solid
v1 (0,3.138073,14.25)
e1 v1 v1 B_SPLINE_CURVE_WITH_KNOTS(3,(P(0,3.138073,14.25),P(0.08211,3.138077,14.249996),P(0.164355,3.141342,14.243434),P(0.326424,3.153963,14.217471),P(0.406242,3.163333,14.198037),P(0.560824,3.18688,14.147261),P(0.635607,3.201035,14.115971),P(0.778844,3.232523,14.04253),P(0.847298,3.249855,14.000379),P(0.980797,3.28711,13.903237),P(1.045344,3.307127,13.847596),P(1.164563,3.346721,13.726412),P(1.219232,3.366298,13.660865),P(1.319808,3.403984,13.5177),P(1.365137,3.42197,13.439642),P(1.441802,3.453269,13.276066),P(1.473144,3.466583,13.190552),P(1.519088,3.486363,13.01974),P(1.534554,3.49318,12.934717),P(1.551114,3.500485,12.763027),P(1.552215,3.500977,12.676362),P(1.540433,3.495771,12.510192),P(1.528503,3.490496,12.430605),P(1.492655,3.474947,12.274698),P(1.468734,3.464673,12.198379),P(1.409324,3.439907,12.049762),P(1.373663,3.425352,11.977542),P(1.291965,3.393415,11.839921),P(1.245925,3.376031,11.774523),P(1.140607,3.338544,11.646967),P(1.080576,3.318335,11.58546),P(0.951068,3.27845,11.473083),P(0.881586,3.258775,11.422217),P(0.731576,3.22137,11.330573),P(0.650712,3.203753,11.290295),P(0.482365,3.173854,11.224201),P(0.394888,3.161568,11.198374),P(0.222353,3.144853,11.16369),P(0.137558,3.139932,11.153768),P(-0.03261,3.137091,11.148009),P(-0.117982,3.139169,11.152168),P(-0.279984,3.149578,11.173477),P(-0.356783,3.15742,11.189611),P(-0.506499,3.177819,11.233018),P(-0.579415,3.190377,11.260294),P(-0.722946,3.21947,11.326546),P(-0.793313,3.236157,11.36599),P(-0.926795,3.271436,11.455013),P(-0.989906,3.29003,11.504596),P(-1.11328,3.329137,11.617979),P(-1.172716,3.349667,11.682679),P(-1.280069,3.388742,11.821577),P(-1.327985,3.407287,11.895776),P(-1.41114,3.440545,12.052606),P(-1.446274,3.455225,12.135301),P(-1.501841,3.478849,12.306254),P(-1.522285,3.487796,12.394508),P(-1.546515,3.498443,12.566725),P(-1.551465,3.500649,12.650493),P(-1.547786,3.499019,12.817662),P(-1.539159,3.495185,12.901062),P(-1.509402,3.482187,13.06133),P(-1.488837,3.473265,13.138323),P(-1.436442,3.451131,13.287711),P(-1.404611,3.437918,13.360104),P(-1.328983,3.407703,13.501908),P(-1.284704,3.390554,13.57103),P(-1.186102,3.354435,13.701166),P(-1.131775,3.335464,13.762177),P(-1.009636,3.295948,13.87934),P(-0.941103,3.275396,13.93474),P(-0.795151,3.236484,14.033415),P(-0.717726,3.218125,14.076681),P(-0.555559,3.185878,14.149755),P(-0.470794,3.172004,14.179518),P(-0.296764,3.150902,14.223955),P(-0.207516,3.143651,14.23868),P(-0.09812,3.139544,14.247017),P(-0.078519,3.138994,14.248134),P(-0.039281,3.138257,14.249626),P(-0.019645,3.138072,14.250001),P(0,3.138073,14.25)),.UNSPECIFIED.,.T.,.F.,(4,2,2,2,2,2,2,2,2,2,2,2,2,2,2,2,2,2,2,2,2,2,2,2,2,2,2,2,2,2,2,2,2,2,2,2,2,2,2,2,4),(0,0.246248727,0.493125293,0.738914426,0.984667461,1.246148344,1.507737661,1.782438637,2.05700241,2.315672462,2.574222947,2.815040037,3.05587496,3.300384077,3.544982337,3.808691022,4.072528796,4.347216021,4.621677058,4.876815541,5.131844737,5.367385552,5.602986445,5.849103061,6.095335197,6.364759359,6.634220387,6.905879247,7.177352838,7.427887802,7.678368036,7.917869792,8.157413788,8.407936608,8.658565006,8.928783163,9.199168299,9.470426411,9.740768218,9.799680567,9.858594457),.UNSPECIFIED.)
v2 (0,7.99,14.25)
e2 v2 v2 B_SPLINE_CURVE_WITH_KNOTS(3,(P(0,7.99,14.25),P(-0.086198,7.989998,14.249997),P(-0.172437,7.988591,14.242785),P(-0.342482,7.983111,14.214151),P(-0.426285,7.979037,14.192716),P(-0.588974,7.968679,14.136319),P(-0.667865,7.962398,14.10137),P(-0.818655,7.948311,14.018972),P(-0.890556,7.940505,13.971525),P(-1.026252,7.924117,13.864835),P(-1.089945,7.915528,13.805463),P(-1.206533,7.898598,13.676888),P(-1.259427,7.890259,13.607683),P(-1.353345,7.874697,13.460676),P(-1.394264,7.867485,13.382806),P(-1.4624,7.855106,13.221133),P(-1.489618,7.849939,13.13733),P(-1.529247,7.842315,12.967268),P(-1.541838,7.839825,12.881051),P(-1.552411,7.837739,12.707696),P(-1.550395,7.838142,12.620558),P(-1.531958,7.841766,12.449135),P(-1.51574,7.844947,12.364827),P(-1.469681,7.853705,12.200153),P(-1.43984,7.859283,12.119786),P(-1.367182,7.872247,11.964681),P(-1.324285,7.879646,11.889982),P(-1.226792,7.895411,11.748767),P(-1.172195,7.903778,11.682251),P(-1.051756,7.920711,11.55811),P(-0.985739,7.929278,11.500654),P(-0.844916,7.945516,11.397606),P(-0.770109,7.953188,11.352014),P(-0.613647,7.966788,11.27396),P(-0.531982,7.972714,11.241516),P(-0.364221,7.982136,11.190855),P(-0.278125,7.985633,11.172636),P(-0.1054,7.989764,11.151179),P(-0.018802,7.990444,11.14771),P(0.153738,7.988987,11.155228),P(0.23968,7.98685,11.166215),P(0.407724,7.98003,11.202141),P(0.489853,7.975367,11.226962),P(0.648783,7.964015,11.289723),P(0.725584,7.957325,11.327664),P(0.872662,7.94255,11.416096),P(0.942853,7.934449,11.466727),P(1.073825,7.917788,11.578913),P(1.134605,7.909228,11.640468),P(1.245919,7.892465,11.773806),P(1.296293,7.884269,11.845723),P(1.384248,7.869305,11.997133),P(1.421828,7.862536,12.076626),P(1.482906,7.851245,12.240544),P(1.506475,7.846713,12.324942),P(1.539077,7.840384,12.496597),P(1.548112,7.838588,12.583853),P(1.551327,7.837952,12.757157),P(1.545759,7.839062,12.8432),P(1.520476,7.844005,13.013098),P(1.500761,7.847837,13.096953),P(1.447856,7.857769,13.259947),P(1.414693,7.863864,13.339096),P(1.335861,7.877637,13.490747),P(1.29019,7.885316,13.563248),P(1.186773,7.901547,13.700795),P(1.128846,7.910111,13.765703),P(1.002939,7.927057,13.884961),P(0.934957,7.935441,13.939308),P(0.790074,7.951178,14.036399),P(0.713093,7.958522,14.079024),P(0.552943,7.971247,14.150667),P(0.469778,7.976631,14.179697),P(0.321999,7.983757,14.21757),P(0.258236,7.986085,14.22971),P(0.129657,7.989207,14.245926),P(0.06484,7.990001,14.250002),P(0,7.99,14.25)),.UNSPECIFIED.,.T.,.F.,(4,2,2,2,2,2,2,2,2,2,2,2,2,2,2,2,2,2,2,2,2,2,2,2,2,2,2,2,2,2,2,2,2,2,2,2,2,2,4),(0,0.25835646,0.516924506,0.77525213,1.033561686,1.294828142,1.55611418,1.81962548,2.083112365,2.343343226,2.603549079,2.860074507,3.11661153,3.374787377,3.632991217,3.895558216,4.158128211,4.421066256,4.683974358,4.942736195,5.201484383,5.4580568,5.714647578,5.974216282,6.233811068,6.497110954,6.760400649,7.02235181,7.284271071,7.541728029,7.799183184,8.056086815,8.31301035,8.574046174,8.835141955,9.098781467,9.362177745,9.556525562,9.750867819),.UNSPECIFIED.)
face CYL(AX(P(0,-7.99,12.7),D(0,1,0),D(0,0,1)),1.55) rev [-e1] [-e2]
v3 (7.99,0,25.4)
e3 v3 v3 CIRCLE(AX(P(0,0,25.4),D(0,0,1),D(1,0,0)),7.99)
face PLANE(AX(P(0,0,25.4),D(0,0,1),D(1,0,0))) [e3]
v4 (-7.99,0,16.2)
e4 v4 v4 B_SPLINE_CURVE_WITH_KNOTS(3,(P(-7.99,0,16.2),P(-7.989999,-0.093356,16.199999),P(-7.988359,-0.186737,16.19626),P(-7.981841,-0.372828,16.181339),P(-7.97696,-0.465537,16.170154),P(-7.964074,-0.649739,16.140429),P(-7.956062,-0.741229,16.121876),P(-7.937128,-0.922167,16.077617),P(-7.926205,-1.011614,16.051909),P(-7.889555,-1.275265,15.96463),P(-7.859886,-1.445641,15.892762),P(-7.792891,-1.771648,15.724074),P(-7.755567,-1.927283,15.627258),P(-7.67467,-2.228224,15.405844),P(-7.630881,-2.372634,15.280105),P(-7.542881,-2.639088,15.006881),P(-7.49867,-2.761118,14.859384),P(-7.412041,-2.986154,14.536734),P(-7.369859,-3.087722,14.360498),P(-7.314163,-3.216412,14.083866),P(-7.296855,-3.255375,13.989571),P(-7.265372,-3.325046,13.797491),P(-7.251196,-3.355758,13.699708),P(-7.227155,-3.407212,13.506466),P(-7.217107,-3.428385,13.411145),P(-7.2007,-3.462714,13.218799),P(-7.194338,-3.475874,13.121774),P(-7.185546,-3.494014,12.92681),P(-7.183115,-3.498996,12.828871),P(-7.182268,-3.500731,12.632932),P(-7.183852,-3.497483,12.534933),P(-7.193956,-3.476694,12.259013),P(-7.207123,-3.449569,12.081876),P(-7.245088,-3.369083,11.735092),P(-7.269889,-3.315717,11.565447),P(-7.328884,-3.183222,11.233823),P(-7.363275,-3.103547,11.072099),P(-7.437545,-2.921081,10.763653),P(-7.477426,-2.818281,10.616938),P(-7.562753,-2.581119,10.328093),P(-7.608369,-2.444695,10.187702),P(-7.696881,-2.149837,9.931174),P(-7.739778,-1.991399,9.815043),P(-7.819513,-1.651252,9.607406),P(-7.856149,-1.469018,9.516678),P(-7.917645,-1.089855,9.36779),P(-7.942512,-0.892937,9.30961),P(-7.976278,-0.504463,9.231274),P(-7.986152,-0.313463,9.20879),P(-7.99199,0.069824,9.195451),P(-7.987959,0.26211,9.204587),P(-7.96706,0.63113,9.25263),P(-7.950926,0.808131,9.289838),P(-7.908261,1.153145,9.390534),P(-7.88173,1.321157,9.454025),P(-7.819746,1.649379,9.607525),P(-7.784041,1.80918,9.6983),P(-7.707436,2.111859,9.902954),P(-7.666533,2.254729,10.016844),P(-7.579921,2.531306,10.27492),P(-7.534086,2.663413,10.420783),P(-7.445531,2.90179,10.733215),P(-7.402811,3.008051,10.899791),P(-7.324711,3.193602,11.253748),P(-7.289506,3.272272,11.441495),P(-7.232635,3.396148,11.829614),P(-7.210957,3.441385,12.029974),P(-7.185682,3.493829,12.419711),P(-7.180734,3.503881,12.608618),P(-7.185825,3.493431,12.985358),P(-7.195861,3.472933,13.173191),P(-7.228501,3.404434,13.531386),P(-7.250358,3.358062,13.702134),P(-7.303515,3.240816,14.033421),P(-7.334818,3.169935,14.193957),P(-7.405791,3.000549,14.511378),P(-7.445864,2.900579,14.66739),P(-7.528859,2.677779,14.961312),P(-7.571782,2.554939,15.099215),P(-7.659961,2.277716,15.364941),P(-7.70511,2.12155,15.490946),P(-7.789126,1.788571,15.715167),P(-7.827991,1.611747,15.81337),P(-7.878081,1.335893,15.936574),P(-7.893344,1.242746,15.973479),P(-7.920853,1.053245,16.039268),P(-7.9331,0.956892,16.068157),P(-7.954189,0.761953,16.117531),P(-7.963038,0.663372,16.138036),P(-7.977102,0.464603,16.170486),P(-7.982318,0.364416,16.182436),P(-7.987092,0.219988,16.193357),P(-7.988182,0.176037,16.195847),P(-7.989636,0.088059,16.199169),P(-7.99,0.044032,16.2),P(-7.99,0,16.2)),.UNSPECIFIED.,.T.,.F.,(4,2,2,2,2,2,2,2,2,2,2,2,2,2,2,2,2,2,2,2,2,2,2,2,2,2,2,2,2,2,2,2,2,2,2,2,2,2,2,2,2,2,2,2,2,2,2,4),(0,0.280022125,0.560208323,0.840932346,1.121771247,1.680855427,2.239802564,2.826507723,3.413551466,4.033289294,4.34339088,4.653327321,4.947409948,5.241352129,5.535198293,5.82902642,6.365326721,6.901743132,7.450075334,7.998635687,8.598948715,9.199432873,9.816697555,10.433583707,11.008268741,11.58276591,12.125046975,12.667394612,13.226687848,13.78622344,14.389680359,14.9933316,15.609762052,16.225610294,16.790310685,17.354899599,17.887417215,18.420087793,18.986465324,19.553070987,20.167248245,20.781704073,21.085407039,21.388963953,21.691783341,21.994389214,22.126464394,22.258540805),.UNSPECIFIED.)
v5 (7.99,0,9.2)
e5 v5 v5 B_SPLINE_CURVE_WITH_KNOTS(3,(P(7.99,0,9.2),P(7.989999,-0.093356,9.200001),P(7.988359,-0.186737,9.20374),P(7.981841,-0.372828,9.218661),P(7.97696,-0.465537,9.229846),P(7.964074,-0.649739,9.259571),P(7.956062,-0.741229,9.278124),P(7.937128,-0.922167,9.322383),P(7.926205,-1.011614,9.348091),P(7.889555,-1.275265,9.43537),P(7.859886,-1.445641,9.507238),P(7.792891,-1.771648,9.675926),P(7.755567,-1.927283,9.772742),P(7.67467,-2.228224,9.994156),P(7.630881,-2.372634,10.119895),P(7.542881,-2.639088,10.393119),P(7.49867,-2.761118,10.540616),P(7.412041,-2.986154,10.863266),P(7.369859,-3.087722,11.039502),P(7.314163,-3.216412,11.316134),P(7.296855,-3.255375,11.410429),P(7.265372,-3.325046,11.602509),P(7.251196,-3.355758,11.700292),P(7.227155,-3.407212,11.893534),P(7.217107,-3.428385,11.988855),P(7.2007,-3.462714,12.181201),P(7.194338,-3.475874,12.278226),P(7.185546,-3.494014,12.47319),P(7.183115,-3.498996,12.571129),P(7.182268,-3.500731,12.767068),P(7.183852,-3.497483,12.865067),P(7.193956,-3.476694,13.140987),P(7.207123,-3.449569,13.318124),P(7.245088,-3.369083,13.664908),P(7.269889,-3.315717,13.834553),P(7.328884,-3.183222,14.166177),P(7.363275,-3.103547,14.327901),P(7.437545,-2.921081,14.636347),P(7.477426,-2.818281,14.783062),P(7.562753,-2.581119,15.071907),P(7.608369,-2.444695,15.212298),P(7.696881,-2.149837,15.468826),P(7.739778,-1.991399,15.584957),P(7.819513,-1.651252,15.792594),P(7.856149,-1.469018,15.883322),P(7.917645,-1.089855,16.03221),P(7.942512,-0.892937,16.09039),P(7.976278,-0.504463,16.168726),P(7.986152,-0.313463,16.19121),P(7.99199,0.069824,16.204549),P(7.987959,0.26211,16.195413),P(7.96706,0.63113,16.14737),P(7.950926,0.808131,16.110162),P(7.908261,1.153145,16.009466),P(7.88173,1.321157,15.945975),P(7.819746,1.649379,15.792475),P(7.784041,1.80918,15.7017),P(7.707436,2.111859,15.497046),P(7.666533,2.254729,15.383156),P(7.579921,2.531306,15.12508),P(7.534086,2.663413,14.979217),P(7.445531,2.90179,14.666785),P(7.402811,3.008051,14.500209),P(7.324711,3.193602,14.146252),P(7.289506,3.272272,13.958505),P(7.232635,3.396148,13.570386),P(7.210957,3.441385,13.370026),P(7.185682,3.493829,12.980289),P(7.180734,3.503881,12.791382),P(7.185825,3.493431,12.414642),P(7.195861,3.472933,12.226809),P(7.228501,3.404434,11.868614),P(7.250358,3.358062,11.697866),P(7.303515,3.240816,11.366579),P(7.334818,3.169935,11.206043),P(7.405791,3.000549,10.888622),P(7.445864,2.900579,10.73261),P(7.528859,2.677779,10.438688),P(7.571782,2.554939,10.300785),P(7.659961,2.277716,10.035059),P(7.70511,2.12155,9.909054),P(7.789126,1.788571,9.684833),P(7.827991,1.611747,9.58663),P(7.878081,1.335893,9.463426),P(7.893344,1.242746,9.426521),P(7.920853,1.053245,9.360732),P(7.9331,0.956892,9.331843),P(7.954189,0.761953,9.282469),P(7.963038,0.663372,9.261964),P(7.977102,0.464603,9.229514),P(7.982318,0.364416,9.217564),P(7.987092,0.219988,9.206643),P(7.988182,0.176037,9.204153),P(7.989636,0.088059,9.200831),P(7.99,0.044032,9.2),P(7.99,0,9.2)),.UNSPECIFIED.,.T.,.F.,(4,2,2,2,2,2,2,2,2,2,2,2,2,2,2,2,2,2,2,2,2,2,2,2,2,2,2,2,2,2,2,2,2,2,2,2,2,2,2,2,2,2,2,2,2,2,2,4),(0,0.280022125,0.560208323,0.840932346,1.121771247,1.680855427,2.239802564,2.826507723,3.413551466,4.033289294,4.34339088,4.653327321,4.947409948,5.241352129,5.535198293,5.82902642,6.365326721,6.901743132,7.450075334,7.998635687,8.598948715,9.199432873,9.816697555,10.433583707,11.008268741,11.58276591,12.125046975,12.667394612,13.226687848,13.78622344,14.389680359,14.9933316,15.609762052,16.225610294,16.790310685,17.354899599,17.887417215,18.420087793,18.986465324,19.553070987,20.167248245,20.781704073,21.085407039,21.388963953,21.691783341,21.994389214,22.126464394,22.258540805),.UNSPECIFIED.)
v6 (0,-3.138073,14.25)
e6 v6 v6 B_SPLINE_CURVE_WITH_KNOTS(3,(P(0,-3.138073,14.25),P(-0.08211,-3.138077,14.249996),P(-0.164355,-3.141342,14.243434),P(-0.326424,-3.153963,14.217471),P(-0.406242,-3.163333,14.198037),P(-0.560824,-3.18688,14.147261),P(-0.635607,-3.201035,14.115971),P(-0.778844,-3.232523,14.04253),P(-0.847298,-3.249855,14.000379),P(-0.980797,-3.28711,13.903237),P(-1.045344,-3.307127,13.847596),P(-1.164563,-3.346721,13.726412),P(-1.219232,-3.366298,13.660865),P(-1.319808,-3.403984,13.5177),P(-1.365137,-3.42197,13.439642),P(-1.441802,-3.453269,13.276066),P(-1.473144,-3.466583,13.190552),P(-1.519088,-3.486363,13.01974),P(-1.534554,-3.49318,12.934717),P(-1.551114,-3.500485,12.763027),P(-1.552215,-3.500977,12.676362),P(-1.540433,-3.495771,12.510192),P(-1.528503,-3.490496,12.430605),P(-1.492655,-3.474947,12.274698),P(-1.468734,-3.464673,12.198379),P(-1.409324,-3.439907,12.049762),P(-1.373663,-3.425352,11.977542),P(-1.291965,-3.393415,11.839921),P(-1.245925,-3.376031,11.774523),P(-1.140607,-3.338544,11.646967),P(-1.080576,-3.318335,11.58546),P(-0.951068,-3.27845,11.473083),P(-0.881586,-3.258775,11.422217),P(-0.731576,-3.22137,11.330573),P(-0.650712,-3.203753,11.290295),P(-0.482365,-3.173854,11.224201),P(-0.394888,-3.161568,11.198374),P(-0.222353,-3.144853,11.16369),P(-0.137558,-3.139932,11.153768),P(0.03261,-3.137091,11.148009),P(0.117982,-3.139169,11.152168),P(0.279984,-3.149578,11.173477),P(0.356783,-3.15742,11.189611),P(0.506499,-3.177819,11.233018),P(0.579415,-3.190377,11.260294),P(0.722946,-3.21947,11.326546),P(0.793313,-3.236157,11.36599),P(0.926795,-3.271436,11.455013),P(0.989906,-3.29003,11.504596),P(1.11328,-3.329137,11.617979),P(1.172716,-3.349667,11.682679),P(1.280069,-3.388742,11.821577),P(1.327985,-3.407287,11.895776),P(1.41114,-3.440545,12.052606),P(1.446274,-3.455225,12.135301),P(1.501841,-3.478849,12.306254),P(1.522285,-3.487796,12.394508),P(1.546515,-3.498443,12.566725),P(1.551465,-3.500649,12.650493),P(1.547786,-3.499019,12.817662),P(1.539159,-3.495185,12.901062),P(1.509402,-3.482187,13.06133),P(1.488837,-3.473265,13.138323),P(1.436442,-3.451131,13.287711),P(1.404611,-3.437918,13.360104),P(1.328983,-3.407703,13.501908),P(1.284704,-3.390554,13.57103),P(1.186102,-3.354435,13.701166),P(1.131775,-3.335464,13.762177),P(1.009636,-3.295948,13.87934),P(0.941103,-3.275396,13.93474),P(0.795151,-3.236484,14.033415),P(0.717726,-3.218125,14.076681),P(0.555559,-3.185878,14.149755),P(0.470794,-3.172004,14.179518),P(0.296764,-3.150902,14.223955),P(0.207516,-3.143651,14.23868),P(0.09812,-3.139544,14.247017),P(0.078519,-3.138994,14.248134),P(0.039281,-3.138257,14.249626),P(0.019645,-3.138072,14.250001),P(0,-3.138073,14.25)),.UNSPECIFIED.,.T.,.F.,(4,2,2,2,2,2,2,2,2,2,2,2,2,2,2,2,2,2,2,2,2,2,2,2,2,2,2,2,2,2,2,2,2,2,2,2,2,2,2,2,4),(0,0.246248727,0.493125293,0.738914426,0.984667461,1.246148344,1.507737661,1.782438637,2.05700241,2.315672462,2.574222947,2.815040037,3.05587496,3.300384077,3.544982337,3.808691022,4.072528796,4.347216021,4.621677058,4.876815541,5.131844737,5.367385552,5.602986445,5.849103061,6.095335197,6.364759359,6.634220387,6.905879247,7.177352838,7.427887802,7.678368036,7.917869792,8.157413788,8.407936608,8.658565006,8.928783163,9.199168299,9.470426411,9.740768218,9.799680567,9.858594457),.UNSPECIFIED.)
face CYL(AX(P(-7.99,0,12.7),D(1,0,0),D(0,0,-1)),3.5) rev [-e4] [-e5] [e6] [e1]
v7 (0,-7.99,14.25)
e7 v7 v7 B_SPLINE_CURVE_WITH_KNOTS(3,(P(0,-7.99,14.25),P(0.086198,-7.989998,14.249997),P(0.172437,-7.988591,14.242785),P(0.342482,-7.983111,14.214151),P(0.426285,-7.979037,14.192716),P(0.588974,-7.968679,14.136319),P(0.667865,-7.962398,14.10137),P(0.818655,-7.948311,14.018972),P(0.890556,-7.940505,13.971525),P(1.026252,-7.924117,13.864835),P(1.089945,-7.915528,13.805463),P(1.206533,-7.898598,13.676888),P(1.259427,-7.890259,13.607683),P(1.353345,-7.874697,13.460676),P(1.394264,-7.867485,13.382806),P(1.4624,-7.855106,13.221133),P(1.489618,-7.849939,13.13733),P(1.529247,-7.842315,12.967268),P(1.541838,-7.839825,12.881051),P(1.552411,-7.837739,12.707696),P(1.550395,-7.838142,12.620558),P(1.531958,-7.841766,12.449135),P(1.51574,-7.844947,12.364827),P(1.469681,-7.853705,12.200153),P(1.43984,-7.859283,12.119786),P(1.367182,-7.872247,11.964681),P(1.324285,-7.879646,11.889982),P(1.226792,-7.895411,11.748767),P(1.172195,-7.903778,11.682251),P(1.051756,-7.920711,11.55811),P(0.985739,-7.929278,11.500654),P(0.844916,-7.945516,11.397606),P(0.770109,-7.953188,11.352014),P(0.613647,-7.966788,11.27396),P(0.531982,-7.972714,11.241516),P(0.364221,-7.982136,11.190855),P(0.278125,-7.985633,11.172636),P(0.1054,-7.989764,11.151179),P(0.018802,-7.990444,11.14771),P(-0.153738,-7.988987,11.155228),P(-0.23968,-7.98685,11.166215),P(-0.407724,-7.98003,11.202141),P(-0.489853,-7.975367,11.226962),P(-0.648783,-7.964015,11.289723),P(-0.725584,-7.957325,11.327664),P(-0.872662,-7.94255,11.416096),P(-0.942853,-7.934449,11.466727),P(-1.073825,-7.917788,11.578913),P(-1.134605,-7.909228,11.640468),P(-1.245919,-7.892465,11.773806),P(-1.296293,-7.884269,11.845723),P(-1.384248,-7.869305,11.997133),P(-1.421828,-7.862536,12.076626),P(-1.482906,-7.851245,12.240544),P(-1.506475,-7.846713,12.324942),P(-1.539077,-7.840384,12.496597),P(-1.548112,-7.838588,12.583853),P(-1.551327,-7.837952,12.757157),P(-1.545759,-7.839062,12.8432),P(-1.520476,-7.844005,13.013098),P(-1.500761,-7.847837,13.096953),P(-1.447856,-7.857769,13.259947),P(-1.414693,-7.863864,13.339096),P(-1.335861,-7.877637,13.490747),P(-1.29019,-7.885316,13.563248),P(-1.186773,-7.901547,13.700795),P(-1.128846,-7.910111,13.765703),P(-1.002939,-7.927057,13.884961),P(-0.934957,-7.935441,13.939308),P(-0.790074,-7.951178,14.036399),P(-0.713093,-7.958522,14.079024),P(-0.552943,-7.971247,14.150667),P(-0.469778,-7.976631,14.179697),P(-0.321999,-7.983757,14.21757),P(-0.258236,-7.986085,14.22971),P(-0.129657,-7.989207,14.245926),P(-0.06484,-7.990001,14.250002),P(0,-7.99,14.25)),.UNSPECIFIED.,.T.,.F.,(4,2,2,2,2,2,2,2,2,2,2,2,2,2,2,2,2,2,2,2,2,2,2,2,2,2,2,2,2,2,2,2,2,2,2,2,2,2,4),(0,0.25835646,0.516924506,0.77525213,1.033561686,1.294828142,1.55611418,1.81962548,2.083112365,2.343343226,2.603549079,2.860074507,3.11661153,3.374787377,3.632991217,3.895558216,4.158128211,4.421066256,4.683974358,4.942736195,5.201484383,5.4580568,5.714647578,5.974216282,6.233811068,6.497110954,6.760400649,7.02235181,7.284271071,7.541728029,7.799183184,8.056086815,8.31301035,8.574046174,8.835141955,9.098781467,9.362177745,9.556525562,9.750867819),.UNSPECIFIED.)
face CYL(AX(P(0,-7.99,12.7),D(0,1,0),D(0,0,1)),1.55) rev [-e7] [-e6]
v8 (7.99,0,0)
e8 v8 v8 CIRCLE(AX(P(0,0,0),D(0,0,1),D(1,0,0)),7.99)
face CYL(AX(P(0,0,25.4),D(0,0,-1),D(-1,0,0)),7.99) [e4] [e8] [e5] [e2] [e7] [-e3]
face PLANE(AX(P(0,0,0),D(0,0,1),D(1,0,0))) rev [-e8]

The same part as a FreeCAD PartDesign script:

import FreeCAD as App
import Part
import Sketcher
from FreeCAD import Vector
Q = App.Units.Quantity

doc = App.newDocument("Part")
params = doc.addObject("Spreadsheet::Sheet", "Params")
for row, (alias, value) in enumerate([
    ("sketch1_diameter", "15.98 mm"),
    ("pad1_length", "25.4 mm"),
    ("sketch2_diameter", "7 mm"),
    ("sketch3_diameter", "3.1 mm"),
], start=1):
    params.set(f"A{row}", alias)
    params.set(f"B{row}", "=" + value)
    params.setAlias(f"B{row}", alias)

body = doc.addObject("PartDesign::Body", "Body")

sketch1 = doc.addObject("Sketcher::SketchObject", "Sketch")
body.addObject(sketch1)
sketch1.AttachmentSupport = (doc.XY_Plane, [""])
sketch1.MapMode = "FlatFace"
sketch1.addGeometry(Part.Circle(Vector(0, 0, 0), Vector(0, 0, 1), 8), False)
sketch1.addConstraint([
    Sketcher.Constraint("Coincident", 0, 3, -1, 1),
    Sketcher.Constraint("Diameter", 0, Q("15.98 mm")),
])
sketch1.setExpression("Constraints[1]", "Params.sketch1_diameter")
pad1 = doc.addObject("PartDesign::Pad", "Pad")
body.addObject(pad1)
pad1.Profile = sketch1
pad1.setExpression("Length", "Params.pad1_length")

sketch2 = doc.addObject("Sketcher::SketchObject", "Sketch001")
body.addObject(sketch2)
sketch2.AttachmentSupport = (doc.YZ_Plane, [""])
sketch2.MapMode = "FlatFace"
sketch2.addGeometry(Part.Circle(Vector(0, 12.7, 0), Vector(0, 0, 1), 3.5), False)
sketch2.addConstraint([
    Sketcher.Constraint("PointOnObject", 0, 3, -2),
    Sketcher.Constraint("Diameter", 0, Q("7 mm")),
    Sketcher.Constraint("DistanceY", -1, 1, 0, 3, Q("12.7 mm")),
])
sketch2.setExpression("Constraints[1]", "Params.sketch2_diameter")
pocket1 = doc.addObject("PartDesign::Pocket", "Pocket")
body.addObject(pocket1)
pocket1.Profile = sketch2
pocket1.Type = "ThroughAll"
pocket1.Midplane = True

sketch3 = doc.addObject("Sketcher::SketchObject", "Sketch002")
body.addObject(sketch3)
sketch3.AttachmentSupport = (doc.XZ_Plane, [""])
sketch3.MapMode = "FlatFace"
sketch3.addGeometry(Part.Circle(Vector(0, 12.7, 0), Vector(0, 0, 1), 1.6), False)
sketch3.addConstraint([
    Sketcher.Constraint("PointOnObject", 0, 3, -2),
    Sketcher.Constraint("Diameter", 0, Q("3.1 mm")),
    Sketcher.Constraint("DistanceY", -1, 1, 0, 3, Q("12.7 mm")),
])
sketch3.setExpression("Constraints[1]", "Params.sketch3_diameter")
pocket2 = doc.addObject("PartDesign::Pocket", "Pocket001")
body.addObject(pocket2)
pocket2.Profile = sketch3
pocket2.Type = "ThroughAll"
pocket2.Midplane = True

doc.recompute()
